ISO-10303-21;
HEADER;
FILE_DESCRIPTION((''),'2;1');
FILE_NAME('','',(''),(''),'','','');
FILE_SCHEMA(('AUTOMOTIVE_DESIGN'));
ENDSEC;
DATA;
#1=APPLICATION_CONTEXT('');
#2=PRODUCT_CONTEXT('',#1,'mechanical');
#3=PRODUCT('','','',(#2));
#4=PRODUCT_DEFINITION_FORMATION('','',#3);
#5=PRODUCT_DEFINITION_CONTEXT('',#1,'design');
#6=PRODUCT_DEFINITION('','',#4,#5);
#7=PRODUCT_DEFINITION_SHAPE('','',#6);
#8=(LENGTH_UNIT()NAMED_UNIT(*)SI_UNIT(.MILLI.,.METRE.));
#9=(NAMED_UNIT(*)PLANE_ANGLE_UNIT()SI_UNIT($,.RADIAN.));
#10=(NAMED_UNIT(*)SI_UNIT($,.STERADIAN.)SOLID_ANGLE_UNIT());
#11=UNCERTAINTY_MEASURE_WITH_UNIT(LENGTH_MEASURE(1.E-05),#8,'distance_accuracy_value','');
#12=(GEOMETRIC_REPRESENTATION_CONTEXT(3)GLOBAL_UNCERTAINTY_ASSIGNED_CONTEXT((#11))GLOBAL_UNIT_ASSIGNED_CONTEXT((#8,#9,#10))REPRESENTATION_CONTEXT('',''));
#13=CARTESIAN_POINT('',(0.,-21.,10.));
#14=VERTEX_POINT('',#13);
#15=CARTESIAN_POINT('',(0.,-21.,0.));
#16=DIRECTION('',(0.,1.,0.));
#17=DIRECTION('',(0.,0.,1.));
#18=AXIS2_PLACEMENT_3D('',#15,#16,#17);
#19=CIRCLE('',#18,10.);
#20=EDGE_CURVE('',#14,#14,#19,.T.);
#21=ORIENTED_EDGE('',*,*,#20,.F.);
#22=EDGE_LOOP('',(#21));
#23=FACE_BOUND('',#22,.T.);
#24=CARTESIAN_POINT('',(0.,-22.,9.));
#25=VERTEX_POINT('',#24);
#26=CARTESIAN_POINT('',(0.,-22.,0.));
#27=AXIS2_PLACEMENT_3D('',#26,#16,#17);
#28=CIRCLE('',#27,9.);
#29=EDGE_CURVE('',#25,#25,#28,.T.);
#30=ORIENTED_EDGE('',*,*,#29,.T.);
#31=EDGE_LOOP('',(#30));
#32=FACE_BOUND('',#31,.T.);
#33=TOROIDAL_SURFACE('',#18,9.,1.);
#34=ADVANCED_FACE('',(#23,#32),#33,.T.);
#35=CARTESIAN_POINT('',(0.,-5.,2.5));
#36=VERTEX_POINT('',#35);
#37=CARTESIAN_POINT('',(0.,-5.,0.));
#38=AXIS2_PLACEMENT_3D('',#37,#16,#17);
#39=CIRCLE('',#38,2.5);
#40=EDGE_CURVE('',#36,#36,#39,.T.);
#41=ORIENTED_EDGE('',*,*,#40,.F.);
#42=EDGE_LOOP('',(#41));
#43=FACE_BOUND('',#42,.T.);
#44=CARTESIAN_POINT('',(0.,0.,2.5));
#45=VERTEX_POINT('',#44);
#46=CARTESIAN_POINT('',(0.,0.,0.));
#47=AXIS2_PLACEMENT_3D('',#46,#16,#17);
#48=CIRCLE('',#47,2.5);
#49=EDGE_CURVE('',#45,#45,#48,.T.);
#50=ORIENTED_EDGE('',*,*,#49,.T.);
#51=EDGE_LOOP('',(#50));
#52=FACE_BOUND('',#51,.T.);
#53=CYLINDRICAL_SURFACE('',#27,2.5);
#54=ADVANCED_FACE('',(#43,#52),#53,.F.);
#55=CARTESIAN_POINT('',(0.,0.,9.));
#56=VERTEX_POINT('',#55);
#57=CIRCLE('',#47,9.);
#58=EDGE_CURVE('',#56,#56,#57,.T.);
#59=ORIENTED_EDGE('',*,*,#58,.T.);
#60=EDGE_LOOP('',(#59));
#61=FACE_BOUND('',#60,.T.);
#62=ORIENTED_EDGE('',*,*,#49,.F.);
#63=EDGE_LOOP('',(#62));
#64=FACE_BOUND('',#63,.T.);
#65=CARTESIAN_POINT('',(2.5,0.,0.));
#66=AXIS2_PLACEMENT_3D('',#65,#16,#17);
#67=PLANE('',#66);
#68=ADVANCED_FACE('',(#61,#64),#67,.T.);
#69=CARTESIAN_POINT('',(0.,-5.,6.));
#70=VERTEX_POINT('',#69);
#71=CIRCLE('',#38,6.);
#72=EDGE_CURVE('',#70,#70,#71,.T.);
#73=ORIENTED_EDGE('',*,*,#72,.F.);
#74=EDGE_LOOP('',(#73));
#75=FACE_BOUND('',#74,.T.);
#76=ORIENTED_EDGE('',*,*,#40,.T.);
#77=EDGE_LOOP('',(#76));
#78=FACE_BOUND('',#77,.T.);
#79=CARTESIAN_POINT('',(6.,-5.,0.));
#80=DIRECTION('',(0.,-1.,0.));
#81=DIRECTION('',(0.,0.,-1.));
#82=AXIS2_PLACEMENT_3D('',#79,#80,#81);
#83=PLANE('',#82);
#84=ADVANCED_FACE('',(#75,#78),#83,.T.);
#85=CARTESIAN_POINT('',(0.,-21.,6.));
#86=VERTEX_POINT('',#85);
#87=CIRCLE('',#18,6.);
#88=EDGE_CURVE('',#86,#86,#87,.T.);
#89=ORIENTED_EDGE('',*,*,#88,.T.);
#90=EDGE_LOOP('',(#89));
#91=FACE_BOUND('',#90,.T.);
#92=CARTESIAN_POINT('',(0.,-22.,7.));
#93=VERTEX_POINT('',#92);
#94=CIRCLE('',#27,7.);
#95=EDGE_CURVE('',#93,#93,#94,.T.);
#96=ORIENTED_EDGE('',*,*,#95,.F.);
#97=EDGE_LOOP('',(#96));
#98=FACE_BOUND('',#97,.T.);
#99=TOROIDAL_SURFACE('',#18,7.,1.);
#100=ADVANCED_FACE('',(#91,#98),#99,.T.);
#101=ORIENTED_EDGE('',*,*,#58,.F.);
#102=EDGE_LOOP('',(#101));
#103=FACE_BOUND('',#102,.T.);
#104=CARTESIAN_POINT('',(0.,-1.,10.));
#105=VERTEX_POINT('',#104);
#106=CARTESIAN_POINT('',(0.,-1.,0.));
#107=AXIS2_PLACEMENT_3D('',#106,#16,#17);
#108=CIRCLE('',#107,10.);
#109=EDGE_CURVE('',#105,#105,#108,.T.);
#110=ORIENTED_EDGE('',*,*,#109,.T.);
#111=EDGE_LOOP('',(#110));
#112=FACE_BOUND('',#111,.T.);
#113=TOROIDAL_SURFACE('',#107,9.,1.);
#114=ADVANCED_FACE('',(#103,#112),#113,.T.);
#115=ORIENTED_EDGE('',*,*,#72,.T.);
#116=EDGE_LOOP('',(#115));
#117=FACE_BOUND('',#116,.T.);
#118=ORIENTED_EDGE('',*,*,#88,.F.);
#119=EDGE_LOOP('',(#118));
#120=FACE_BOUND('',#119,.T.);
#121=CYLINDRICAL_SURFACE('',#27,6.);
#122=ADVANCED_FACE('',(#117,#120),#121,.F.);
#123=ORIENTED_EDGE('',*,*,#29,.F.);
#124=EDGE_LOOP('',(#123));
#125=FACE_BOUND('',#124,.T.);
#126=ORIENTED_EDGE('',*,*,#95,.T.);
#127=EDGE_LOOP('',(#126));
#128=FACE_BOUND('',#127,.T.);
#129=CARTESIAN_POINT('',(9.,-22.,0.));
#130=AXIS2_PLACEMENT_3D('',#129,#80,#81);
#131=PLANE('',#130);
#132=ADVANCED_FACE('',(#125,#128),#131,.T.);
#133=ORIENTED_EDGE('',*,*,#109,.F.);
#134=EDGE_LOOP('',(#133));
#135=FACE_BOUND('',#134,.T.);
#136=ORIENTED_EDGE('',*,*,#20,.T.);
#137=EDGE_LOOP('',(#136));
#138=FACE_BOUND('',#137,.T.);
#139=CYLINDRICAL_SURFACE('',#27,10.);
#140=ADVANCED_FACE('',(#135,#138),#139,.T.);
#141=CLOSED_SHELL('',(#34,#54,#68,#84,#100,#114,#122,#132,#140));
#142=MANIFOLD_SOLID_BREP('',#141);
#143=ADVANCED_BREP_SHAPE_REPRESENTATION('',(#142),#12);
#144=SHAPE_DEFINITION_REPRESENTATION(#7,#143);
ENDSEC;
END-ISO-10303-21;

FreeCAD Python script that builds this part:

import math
import FreeCAD as App
import Part
import Sketcher

V = App.Vector

doc = App.newDocument("Part")
body = doc.addObject("PartDesign::Body", "Body")

sketch1 = body.newObject("Sketcher::SketchObject", "Sketch")
sketch1.AttachmentSupport = (doc.getObject("XY_Plane"), [""])
sketch1.MapMode = "FlatFace"
sketch1.addGeometry([
    Part.LineSegment(V(6, -21, 0), V(6, -5, 0)),
    Part.LineSegment(V(6, -5, 0), V(2.5, -5, 0)),
    Part.LineSegment(V(2.5, -5, 0), V(2.5, 0, 0)),
    Part.LineSegment(V(2.5, 0, 0), V(9, 0, 0)),
    Part.ArcOfCircle(Part.Circle(V(9, -1, 0), V(0, 0, 1), 1), math.radians(0), math.radians(90)),
    Part.LineSegment(V(10, -1, 0), V(10, -21, 0)),
    Part.ArcOfCircle(Part.Circle(V(9, -21, 0), V(0, 0, 1), 1), math.radians(-90), math.radians(0)),
    Part.LineSegment(V(9, -22, 0), V(7, -22, 0)),
    Part.ArcOfCircle(Part.Circle(V(7, -21, 0), V(0, 0, 1), 1), math.radians(-180), math.radians(-90)),
], False)
sketch1.addConstraint([
    Sketcher.Constraint("Coincident", 0, 2, 1, 1),
    Sketcher.Constraint("Coincident", 1, 2, 2, 1),
    Sketcher.Constraint("Coincident", 2, 2, 3, 1),
    Sketcher.Constraint("Tangent", 3, 2, 4, 2),
    Sketcher.Constraint("Tangent", 4, 1, 5, 1),
    Sketcher.Constraint("Tangent", 5, 2, 6, 2),
    Sketcher.Constraint("Tangent", 6, 1, 7, 1),
    Sketcher.Constraint("Tangent", 7, 2, 8, 2),
    Sketcher.Constraint("Tangent", 8, 1, 0, 1),
    Sketcher.Constraint("Vertical", 0),
    Sketcher.Constraint("Horizontal", 1),
    Sketcher.Constraint("Vertical", 2),
    Sketcher.Constraint("Horizontal", 3),
    Sketcher.Constraint("Vertical", 5),
    Sketcher.Constraint("Horizontal", 7),
    Sketcher.Constraint("Equal", 4, 6),
    Sketcher.Constraint("Equal", 6, 8),
    Sketcher.Constraint("PointOnObject", 2, 2, -1),
    Sketcher.Constraint("Radius", 4, 1.0),
    Sketcher.Constraint("DistanceX", 7, 2, 7, 1, 2.0),
    Sketcher.Constraint("DistanceY", 0, 1, 0, 2, 16.0),
    Sketcher.Constraint("DistanceY", 2, 1, 2, 2, 5.0),
    Sketcher.Constraint("DistanceX", 1, 2, 1, 1, 3.5),
    Sketcher.Constraint("DistanceX", -1, 1, 4, 3, 9.0),
])
revolution = body.newObject("PartDesign::Revolution", "Revolution")
revolution.Profile = sketch1
revolution.ReferenceAxis = (sketch1, ["V_Axis"])
revolution.Angle = 360

doc.recompute()
